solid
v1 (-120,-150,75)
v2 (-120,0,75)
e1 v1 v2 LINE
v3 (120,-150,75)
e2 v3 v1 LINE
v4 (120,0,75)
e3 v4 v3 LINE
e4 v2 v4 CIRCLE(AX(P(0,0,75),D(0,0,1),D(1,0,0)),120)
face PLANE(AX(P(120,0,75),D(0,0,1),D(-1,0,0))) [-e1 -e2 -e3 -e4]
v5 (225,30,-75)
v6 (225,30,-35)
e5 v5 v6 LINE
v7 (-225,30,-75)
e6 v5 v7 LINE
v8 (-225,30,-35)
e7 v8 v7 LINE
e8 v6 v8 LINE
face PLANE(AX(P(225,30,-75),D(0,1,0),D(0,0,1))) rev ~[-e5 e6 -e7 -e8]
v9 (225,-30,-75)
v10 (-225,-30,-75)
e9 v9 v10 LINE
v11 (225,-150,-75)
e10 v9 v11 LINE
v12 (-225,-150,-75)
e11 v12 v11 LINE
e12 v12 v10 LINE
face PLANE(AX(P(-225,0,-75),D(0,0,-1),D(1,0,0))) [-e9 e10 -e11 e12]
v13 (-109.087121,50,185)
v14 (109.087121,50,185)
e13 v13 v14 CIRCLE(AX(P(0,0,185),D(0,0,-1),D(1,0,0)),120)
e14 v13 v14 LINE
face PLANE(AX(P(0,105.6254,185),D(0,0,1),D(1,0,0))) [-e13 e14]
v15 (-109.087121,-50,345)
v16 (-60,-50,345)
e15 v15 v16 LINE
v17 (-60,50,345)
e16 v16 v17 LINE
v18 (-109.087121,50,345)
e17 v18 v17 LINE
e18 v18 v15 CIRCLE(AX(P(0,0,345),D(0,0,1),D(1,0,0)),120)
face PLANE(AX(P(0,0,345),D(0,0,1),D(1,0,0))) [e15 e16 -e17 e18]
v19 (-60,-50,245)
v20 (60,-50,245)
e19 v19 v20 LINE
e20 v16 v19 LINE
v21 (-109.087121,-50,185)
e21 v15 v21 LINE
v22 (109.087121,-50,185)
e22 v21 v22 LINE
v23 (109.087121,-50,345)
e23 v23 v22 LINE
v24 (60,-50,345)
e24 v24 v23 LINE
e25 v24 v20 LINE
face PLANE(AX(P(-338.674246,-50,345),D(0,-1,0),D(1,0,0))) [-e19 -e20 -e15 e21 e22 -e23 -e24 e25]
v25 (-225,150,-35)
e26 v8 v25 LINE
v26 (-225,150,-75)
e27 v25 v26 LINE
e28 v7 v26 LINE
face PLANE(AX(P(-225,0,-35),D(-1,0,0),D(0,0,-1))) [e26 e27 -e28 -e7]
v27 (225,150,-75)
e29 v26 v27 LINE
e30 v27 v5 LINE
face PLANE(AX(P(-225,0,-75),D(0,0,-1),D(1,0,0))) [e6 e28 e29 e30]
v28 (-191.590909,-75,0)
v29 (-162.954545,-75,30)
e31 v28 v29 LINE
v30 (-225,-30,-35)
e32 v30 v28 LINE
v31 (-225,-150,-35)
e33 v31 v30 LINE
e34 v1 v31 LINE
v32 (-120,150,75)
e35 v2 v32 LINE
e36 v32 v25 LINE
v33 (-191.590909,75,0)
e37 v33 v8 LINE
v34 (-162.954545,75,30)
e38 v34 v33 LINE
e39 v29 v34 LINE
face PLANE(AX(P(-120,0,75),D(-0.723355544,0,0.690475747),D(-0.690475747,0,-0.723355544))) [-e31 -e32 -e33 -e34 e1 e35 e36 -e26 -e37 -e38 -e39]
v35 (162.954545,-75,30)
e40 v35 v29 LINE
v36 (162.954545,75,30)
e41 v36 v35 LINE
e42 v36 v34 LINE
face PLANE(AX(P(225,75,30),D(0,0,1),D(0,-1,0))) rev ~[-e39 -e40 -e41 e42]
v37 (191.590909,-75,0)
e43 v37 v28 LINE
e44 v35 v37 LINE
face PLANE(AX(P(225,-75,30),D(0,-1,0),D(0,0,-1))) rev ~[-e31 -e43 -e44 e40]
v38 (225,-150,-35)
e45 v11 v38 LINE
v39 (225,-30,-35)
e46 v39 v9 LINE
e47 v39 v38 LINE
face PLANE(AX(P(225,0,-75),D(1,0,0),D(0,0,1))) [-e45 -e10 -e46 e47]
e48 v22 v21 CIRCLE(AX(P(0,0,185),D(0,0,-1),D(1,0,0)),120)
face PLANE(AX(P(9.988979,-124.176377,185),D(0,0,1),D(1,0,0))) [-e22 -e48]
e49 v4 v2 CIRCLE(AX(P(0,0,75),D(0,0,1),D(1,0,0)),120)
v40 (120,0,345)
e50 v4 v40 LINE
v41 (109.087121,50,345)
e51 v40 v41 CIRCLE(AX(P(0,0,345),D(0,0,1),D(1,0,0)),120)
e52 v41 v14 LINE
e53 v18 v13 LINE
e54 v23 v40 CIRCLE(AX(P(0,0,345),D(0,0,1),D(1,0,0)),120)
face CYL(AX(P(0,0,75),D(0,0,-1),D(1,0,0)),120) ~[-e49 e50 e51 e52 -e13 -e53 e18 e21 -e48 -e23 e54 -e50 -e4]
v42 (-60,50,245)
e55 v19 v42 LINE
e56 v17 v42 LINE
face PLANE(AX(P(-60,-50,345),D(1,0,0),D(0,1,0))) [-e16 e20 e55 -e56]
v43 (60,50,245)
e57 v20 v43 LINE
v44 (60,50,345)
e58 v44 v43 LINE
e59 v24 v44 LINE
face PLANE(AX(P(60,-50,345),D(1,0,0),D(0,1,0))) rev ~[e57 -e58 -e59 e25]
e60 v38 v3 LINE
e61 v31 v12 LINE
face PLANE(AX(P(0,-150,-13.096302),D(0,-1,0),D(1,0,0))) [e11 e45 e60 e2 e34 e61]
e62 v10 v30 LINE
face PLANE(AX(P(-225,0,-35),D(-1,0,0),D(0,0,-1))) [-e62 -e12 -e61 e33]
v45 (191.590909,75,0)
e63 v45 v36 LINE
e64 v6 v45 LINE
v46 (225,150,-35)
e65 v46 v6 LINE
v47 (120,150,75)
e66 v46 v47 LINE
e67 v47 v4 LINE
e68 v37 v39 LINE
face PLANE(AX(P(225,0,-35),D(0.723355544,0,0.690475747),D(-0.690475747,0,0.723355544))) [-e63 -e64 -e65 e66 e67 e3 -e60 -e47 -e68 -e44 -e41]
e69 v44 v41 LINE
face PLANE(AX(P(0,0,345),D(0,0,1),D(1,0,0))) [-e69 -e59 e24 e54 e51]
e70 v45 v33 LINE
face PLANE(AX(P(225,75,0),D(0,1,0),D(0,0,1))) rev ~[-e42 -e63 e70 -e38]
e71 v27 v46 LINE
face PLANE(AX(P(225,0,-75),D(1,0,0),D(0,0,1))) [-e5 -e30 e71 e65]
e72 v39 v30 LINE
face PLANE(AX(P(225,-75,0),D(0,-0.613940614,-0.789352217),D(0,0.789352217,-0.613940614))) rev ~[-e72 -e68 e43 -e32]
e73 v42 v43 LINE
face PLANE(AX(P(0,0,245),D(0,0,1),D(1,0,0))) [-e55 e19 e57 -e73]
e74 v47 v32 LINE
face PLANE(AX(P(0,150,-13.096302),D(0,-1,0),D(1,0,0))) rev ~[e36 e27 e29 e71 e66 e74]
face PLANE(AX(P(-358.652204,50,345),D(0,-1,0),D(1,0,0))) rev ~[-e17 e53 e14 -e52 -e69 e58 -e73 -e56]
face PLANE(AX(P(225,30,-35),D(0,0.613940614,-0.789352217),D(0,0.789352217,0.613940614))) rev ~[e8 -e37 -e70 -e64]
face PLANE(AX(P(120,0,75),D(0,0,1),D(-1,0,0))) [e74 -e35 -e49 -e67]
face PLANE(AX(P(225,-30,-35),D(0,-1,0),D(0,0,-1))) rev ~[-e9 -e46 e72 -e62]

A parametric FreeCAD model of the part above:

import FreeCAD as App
import Part
import Sketcher
from FreeCAD import Vector

doc = App.newDocument("Part")
body = doc.addObject("PartDesign::Body", "Body")

# Sketch on XZ plane
sketch1 = doc.addObject("Sketcher::SketchObject", "Sketch")
body.addObject(sketch1)
sketch1.AttachmentSupport = (doc.XZ_Plane, [""])
sketch1.MapMode = "FlatFace"
sketch1.addGeometry([
    Part.LineSegment(Vector(-225, -75, 0), Vector(225, -75, 0)),  # 0
    Part.LineSegment(Vector(225, -75, 0), Vector(225, -35, 0)),  # 1
    Part.LineSegment(Vector(225, -35, 0), Vector(120, 75, 0)),  # 2
    Part.LineSegment(Vector(120, 75, 0), Vector(-120, 75, 0)),  # 3
    Part.LineSegment(Vector(-120, 75, 0), Vector(-225, -35, 0)),  # 4
    Part.LineSegment(Vector(-225, -35, 0), Vector(-225, -75, 0)),  # 5
], False)
sketch1.addConstraint([
    Sketcher.Constraint("Coincident", 0, 2, 1, 1),
    Sketcher.Constraint("Coincident", 1, 2, 2, 1),
    Sketcher.Constraint("Coincident", 2, 2, 3, 1),
    Sketcher.Constraint("Coincident", 3, 2, 4, 1),
    Sketcher.Constraint("Coincident", 4, 2, 5, 1),
    Sketcher.Constraint("Coincident", 5, 2, 0, 1),
    Sketcher.Constraint("Horizontal", 0),
    Sketcher.Constraint("Vertical", 1),
    Sketcher.Constraint("Horizontal", 3),
    Sketcher.Constraint("Vertical", 5),
    Sketcher.Constraint("Symmetric", 1, 2, 4, 2, -2),
    Sketcher.Constraint("Equal", 2, 4),
    Sketcher.Constraint("DistanceX", 0, 1, 0, 2, 450.0),
    Sketcher.Constraint("DistanceX", 3, 2, 3, 1, 240.0),
    Sketcher.Constraint("DistanceY", 1, 1, 1, 2, 40.0),
    Sketcher.Constraint("DistanceY", 0, 2, -1, 1, 75.0),
    Sketcher.Constraint("DistanceY", -1, 1, 2, 2, 75.0),
])
pad1 = doc.addObject("PartDesign::Pad", "Pad")
body.addObject(pad1)
pad1.Profile = sketch1
pad1.Length = 300
pad1.Midplane = True

# Sketch on XY plane
sketch2 = doc.addObject("Sketcher::SketchObject", "Sketch001")
body.addObject(sketch2)
sketch2.AttachmentSupport = (doc.XY_Plane, [""])
sketch2.MapMode = "FlatFace"
sketch2.AttachmentOffset = App.Placement(Vector(0, 0, 75), App.Rotation())
sketch2.addGeometry(Part.Circle(Vector(0, 0, 0), Vector(0, 0, 1), 120), False)
sketch2.addConstraint([
    Sketcher.Constraint("Coincident", 0, 3, -1, 1),
    Sketcher.Constraint("Diameter", 0, 240.0),
])
pad2 = doc.addObject("PartDesign::Pad", "Pad001")
body.addObject(pad2)
pad2.Profile = sketch2
pad2.Length = 270

# Sketch on XY plane
sketch3 = doc.addObject("Sketcher::SketchObject", "Sketch002")
body.addObject(sketch3)
sketch3.AttachmentSupport = (doc.XY_Plane, [""])
sketch3.MapMode = "FlatFace"
sketch3.AttachmentOffset = App.Placement(Vector(0, 0, 345), App.Rotation())
sketch3.addGeometry([
    Part.LineSegment(Vector(-358.652204, 161.2508, 0), Vector(-358.652204, 50, 0)),  # 0
    Part.LineSegment(Vector(-358.652204, 50, 0), Vector(358.652204, 50, 0)),  # 1
    Part.LineSegment(Vector(358.652204, 50, 0), Vector(358.652204, 161.2508, 0)),  # 2
    Part.LineSegment(Vector(358.652204, 161.2508, 0), Vector(-358.652204, 161.2508, 0)),  # 3
    Part.LineSegment(Vector(-338.674246, -50, 0), Vector(-338.674246, -198.352754, 0)),  # 4
    Part.LineSegment(Vector(-338.674246, -198.352754, 0), Vector(358.652204, -198.352754, 0)),  # 5
    Part.LineSegment(Vector(358.652204, -198.352754, 0), Vector(358.652204, -50, 0)),  # 6
    Part.LineSegment(Vector(358.652204, -50, 0), Vector(-338.674246, -50, 0)),  # 7
], False)
sketch3.addConstraint([
    Sketcher.Constraint("Coincident", 0, 2, 1, 1),
    Sketcher.Constraint("Coincident", 1, 2, 2, 1),
    Sketcher.Constraint("Coincident", 2, 2, 3, 1),
    Sketcher.Constraint("Coincident", 3, 2, 0, 1),
    Sketcher.Constraint("Coincident", 4, 2, 5, 1),
    Sketcher.Constraint("Coincident", 5, 2, 6, 1),
    Sketcher.Constraint("Coincident", 6, 2, 7, 1),
    Sketcher.Constraint("Coincident", 7, 2, 4, 1),
    Sketcher.Constraint("Vertical", 0),
    Sketcher.Constraint("Horizontal", 1),
    Sketcher.Constraint("Vertical", 2),
    Sketcher.Constraint("Horizontal", 3),
    Sketcher.Constraint("Vertical", 4),
    Sketcher.Constraint("Horizontal", 5),
    Sketcher.Constraint("Vertical", 6),
    Sketcher.Constraint("Horizontal", 7),
    Sketcher.Constraint("Symmetric", 0, 2, 6, 2, -1, 1),
    Sketcher.Constraint("Vertical", 2, 2, 5, 2),
    Sketcher.Constraint("DistanceY", -1, 1, 0, 2, 50.0),
    Sketcher.Constraint("DistanceY", 0, 2, 0, 1, 111.2508),
    Sketcher.Constraint("DistanceX", 1, 1, 1, 2, 717.304408),
    Sketcher.Constraint("DistanceX", 5, 1, 5, 2, 697.326451),
    Sketcher.Constraint("DistanceY", 4, 2, 4, 1, 148.352754),
])
pocket1 = doc.addObject("PartDesign::Pocket", "Pocket")
body.addObject(pocket1)
pocket1.Profile = sketch3
pocket1.Length = 160

# Sketch on XY plane
sketch4 = doc.addObject("Sketcher::SketchObject", "Sketch003")
body.addObject(sketch4)
sketch4.AttachmentSupport = (doc.XY_Plane, [""])
sketch4.MapMode = "FlatFace"
sketch4.AttachmentOffset = App.Placement(Vector(0, 0, 345), App.Rotation())
sketch4.addGeometry([
    Part.LineSegment(Vector(-60, 50, 0), Vector(-60, -50, 0)),
    Part.LineSegment(Vector(-60, -50, 0), Vector(60, -50, 0)),
    Part.LineSegment(Vector(60, -50, 0), Vector(60, 50, 0)),
    Part.LineSegment(Vector(60, 50, 0), Vector(-60, 50, 0)),
], False)
sketch4.addConstraint([
    Sketcher.Constraint("Coincident", 0, 2, 1, 1),
    Sketcher.Constraint("Coincident", 1, 2, 2, 1),
    Sketcher.Constraint("Coincident", 2, 2, 3, 1),
    Sketcher.Constraint("Coincident", 3, 2, 0, 1),
    Sketcher.Constraint("Vertical", 0),
    Sketcher.Constraint("Horizontal", 1),
    Sketcher.Constraint("Vertical", 2),
    Sketcher.Constraint("Horizontal", 3),
    Sketcher.Constraint("Symmetric", 0, 2, 2, 2, -1, 1),
    Sketcher.Constraint("DistanceX", 1, 1, 1, 2, 120.0),
    Sketcher.Constraint("DistanceY", 0, 2, 0, 1, 100.0),
])
pocket2 = doc.addObject("PartDesign::Pocket", "Pocket001")
body.addObject(pocket2)
pocket2.Profile = sketch4
pocket2.Length = 100

# Sketch on YZ plane
sketch5 = doc.addObject("Sketcher::SketchObject", "Sketch004")
body.addObject(sketch5)
sketch5.AttachmentSupport = (doc.YZ_Plane, [""])
sketch5.MapMode = "FlatFace"
sketch5.AttachmentOffset = App.Placement(Vector(0, 0, 225), App.Rotation())
sketch5.addGeometry([
    Part.LineSegment(Vector(-30, -35, 0), Vector(-30, -75, 0)),  # 0
    Part.LineSegment(Vector(-30, -75, 0), Vector(30, -75, 0)),  # 1
    Part.LineSegment(Vector(30, -75, 0), Vector(30, -35, 0)),  # 2
    Part.LineSegment(Vector(30, -35, 0), Vector(75, 0, 0)),  # 3
    Part.LineSegment(Vector(75, 0, 0), Vector(75, 30, 0)),  # 4
    Part.LineSegment(Vector(75, 30, 0), Vector(-75, 30, 0)),  # 5
    Part.LineSegment(Vector(-75, 30, 0), Vector(-75, 0, 0)),  # 6
    Part.LineSegment(Vector(-75, 0, 0), Vector(-30, -35, 0)),  # 7
], False)
sketch5.addConstraint([
    Sketcher.Constraint("Coincident", 0, 2, 1, 1),
    Sketcher.Constraint("Coincident", 1, 2, 2, 1),
    Sketcher.Constraint("Coincident", 2, 2, 3, 1),
    Sketcher.Constraint("Coincident", 3, 2, 4, 1),
    Sketcher.Constraint("Coincident", 4, 2, 5, 1),
    Sketcher.Constraint("Coincident", 5, 2, 6, 1),
    Sketcher.Constraint("Coincident", 6, 2, 7, 1),
    Sketcher.Constraint("Coincident", 7, 2, 0, 1),
    Sketcher.Constraint("Vertical", 0),
    Sketcher.Constraint("Horizontal", 1),
    Sketcher.Constraint("Vertical", 2),
    Sketcher.Constraint("Vertical", 4),
    Sketcher.Constraint("Horizontal", 5),
    Sketcher.Constraint("Vertical", 6),
    Sketcher.Constraint("Symmetric", 3, 2, 6, 2, -1, 1),
    Sketcher.Constraint("Symmetric", 2, 2, 7, 2, -2),
    Sketcher.Constraint("PointOnObject", 3, 2, -1),
    Sketcher.Constraint("DistanceX", 1, 1, 1, 2, 60.0),
    Sketcher.Constraint("DistanceX", 5, 2, 5, 1, 150.0),
    Sketcher.Constraint("DistanceY", 0, 2, 0, 1, 40.0),
    Sketcher.Constraint("DistanceY", 4, 1, 4, 2, 30.0),
    Sketcher.Constraint("DistanceY", 0, 2, -1, 1, 75.0),
])
pocket3 = doc.addObject("PartDesign::Pocket", "Pocket002")
body.addObject(pocket3)
pocket3.Profile = sketch5
pocket3.Type = "ThroughAll"

doc.recompute()
